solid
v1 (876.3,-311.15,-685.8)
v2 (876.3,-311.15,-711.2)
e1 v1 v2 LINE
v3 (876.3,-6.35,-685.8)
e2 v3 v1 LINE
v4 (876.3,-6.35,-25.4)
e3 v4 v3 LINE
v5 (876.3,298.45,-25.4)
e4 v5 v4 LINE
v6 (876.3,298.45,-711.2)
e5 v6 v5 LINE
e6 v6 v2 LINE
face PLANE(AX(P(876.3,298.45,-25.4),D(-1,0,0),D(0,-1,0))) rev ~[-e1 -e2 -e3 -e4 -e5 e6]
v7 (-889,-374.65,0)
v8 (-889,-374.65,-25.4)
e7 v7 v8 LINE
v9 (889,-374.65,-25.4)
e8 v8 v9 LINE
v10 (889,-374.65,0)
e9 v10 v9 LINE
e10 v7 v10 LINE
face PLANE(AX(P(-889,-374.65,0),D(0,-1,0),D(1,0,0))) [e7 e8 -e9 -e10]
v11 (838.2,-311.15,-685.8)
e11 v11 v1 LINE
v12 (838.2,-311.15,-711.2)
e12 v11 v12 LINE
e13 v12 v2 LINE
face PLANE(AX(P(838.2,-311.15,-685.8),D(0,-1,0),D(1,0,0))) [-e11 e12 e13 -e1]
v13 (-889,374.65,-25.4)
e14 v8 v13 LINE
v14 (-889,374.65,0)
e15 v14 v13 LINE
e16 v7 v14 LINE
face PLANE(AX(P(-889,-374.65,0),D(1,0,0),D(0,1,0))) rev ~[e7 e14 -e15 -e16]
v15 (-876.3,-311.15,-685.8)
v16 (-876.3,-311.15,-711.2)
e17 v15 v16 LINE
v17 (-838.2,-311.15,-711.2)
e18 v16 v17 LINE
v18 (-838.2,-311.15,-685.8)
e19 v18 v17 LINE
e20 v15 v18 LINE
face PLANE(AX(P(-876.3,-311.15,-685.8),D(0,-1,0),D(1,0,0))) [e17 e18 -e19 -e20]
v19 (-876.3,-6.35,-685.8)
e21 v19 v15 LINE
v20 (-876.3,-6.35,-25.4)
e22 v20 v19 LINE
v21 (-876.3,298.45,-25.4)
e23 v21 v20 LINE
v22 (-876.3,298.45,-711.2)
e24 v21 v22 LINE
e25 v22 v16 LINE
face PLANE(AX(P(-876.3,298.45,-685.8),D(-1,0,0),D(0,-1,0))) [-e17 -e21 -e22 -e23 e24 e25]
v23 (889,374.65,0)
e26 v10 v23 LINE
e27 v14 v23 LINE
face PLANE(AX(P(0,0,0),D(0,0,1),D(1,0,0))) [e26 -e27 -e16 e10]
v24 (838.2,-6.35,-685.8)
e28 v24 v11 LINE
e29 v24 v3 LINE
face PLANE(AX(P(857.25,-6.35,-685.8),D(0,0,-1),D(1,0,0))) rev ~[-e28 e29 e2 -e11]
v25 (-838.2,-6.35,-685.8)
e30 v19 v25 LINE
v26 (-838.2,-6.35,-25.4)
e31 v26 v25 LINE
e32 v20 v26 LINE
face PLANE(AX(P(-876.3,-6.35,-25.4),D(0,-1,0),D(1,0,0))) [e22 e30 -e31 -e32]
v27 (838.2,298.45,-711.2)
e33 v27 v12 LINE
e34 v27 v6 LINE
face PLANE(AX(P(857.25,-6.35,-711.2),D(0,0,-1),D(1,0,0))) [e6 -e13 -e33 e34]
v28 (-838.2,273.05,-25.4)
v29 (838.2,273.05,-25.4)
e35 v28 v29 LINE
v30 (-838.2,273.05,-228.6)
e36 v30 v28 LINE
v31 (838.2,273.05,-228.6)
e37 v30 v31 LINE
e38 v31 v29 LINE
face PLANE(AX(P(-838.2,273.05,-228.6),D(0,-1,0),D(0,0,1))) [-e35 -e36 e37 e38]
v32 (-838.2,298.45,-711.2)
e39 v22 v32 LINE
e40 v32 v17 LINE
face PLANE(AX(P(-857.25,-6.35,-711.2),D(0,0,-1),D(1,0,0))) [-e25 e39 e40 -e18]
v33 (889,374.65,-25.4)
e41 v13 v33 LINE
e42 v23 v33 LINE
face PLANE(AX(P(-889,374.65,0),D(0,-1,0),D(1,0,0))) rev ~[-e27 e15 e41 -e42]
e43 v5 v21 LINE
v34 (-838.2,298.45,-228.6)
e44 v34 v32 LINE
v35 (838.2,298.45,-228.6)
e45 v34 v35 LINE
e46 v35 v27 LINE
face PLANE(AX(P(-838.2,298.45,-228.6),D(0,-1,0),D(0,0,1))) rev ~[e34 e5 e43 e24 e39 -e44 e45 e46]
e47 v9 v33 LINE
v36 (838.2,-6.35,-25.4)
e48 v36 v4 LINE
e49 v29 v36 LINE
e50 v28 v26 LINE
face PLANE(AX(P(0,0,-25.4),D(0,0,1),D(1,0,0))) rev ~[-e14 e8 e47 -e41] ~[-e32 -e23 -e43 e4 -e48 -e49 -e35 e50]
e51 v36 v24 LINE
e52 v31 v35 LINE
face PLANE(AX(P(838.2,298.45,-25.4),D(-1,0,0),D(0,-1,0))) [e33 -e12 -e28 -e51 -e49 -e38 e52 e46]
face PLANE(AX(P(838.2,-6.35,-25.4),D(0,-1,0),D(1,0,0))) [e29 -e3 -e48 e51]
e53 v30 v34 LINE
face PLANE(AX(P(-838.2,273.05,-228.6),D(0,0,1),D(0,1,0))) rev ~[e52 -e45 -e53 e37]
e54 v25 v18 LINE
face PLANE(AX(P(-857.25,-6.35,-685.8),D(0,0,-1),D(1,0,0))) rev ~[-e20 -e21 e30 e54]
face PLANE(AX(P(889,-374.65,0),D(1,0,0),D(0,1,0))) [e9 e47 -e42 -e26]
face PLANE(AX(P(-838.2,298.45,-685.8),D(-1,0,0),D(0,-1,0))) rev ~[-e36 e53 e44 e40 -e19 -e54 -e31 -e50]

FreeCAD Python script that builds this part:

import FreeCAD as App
import Part
import Sketcher
Q = App.Units.Quantity


def add_polygon(sketch, points):
    """Adds a closed chain of lines whose ends are joined by coincident constraints."""
    first, n = sketch.GeometryCount, len(points)
    for a, b in zip(points, points[1:] + points[:1]):
        sketch.addGeometry(Part.LineSegment(App.Vector(*a, 0), App.Vector(*b, 0)), False)
    for i in range(n):
        sketch.addConstraint(Sketcher.Constraint("Coincident", first + i, 2, first + (i + 1) % n, 1))

doc = App.newDocument("Part")
params = doc.addObject("Spreadsheet::Sheet", "Params")
for row, (alias, value) in enumerate([
    ("sketch1_width", "70 in"),
    ("sketch1_height", "29.5 in"),
    ("pad1_length", "1 in"),
    ("sketch2_height", "12 in"),
    ("sketch2_width", "1.5 in"),
    ("pad2_length", "26 in"),
    ("sketch3_height", "24 in"),
    ("sketch3_width", "1.5 in"),
    ("pad3_length", "1 in"),
    ("sketch4_width", "1 in"),
    ("sketch4_height", "8 in"),
], start=1):
    params.set(f"A{row}", alias)
    params.set(f"B{row}", "=" + value)
    params.setAlias(f"B{row}", alias)

body = doc.addObject("PartDesign::Body", "Body")

sketch1 = body.newObject("Sketcher::SketchObject", "Sketch")
sketch1.AttachmentSupport = (doc.getObject("XY_Plane"), [""])
sketch1.MapMode = "FlatFace"
add_polygon(sketch1, [(-889, 374.65), (-889, -374.65), (889, -374.65), (889, 374.65)])
sketch1.addConstraint([
    Sketcher.Constraint("Vertical", 0),
    Sketcher.Constraint("Horizontal", 1),
    Sketcher.Constraint("Vertical", 2),
    Sketcher.Constraint("Horizontal", 3),
    Sketcher.Constraint("Symmetric", 0, 2, 2, 2, -1, 1),
    Sketcher.Constraint("DistanceX", 1, 1, 1, 2, Q("70 in")),
    Sketcher.Constraint("DistanceY", 0, 2, 0, 1, Q("29.5 in")),
])
sketch1.setExpression("Constraints[9]", "Params.sketch1_width")
sketch1.setExpression("Constraints[10]", "Params.sketch1_height")
pad1 = body.newObject("PartDesign::Pad", "Pad")
pad1.Profile = sketch1
pad1.setExpression("Length", "Params.pad1_length")
pad1.Reversed = True

sketch2 = body.newObject("Sketcher::SketchObject", "Sketch001")
sketch2.AttachmentSupport = (doc.getObject("XY_Plane"), [""])
sketch2.MapMode = "FlatFace"
sketch2.AttachmentOffset = App.Placement(App.Vector(0, 0, -1 * 25.4), App.Rotation())
add_polygon(sketch2, [(838.2, -6.35), (838.2, 298.45), (876.3, 298.45), (876.3, -6.35)])
add_polygon(sketch2, [(-876.3, -6.35), (-876.3, 298.45), (-838.2, 298.45), (-838.2, -6.35)])
sketch2.addConstraint([
    Sketcher.Constraint("Vertical", 0),
    Sketcher.Constraint("Horizontal", 1),
    Sketcher.Constraint("Vertical", 2),
    Sketcher.Constraint("Horizontal", 3),
    Sketcher.Constraint("Vertical", 4),
    Sketcher.Constraint("Horizontal", 5),
    Sketcher.Constraint("Vertical", 6),
    Sketcher.Constraint("Horizontal", 7),
    Sketcher.Constraint("Symmetric", 1, 2, 4, 2, -2),
    Sketcher.Constraint("Symmetric", 3, 2, 6, 2, -2),
    Sketcher.Constraint("DistanceY", 0, 1, 0, 2, Q("12 in")),
    Sketcher.Constraint("DistanceX", 1, 1, 1, 2, Q("1.5 in")),
    Sketcher.Constraint("DistanceX", -1, 1, 0, 2, Q("33 in")),
    Sketcher.Constraint("DistanceY", -1, 1, 0, 2, Q("11.75 in")),
])
sketch2.setExpression("Constraints[18]", "Params.sketch2_height")
sketch2.setExpression("Constraints[19]", "Params.sketch2_width")
pad2 = body.newObject("PartDesign::Pad", "Pad001")
pad2.Profile = sketch2
pad2.setExpression("Length", "Params.pad2_length")
pad2.Reversed = True

sketch3 = body.newObject("Sketcher::SketchObject", "Sketch002")
sketch3.AttachmentSupport = (doc.getObject("XY_Plane"), [""])
sketch3.MapMode = "FlatFace"
sketch3.AttachmentOffset = App.Placement(App.Vector(0, 0, -27 * 25.4), App.Rotation())
add_polygon(sketch3, [(-876.3, -311.15), (-876.3, 298.45), (-838.2, 298.45), (-838.2, -311.15)])
add_polygon(sketch3, [(838.2, -311.15), (838.2, 298.45), (876.3, 298.45), (876.3, -311.15)])
sketch3.addConstraint([
    Sketcher.Constraint("Vertical", 0),
    Sketcher.Constraint("Horizontal", 1),
    Sketcher.Constraint("Vertical", 2),
    Sketcher.Constraint("Horizontal", 3),
    Sketcher.Constraint("Vertical", 4),
    Sketcher.Constraint("Horizontal", 5),
    Sketcher.Constraint("Vertical", 6),
    Sketcher.Constraint("Horizontal", 7),
    Sketcher.Constraint("Symmetric", 1, 2, 4, 2, -2),
    Sketcher.Constraint("Symmetric", 3, 2, 6, 2, -2),
    Sketcher.Constraint("DistanceY", 0, 1, 0, 2, Q("24 in")),
    Sketcher.Constraint("DistanceX", 1, 1, 1, 2, Q("1.5 in")),
    Sketcher.Constraint("DistanceX", 1, 2, -1, 1, Q("33 in")),
    Sketcher.Constraint("DistanceY", -1, 1, 0, 2, Q("11.75 in")),
])
sketch3.setExpression("Constraints[18]", "Params.sketch3_height")
sketch3.setExpression("Constraints[19]", "Params.sketch3_width")
pad3 = body.newObject("PartDesign::Pad", "Pad002")
pad3.Profile = sketch3
pad3.setExpression("Length", "Params.pad3_length")
pad3.Reversed = True

sketch4 = body.newObject("Sketcher::SketchObject", "Sketch003")
sketch4.AttachmentSupport = (doc.getObject("YZ_Plane"), [""])
sketch4.MapMode = "FlatFace"
sketch4.AttachmentOffset = App.Placement(App.Vector(0, 0, -33 * 25.4), App.Rotation())
add_polygon(sketch4, [(273.05, -25.4), (273.05, -228.6), (298.45, -228.6), (298.45, -25.4)])
sketch4.addConstraint([
    Sketcher.Constraint("Vertical", 0),
    Sketcher.Constraint("Horizontal", 1),
    Sketcher.Constraint("Vertical", 2),
    Sketcher.Constraint("Horizontal", 3),
    Sketcher.Constraint("DistanceX", 1, 1, 1, 2, Q("1 in")),
    Sketcher.Constraint("DistanceY", 0, 2, 0, 1, Q("8 in")),
    Sketcher.Constraint("DistanceY", 0, 2, -1, 1, Q("9 in")),
    Sketcher.Constraint("DistanceX", -1, 1, 0, 2, Q("10.75 in")),
])
sketch4.setExpression("Constraints[8]", "Params.sketch4_width")
sketch4.setExpression("Constraints[9]", "Params.sketch4_height")
pad4 = body.newObject("PartDesign::Pad", "Pad003")
pad4.Profile = sketch4
pad4.Type = "UpToLast"

doc.recompute()
